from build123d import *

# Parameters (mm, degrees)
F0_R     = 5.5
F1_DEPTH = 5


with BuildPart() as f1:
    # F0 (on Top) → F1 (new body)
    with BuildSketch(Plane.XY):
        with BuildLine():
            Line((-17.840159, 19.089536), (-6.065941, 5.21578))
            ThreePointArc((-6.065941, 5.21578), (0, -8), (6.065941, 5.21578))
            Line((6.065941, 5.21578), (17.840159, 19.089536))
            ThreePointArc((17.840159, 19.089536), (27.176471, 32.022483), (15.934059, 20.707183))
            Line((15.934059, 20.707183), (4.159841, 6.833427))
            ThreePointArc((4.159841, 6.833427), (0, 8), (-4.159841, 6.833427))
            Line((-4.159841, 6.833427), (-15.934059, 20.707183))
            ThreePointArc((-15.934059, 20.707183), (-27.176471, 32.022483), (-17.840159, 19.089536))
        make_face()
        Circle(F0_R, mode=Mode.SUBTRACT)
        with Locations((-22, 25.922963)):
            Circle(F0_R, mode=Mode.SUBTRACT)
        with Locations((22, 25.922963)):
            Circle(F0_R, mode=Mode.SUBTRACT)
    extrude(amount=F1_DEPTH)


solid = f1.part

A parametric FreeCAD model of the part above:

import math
import FreeCAD as App
import Part
import Sketcher
from FreeCAD import Vector
Q = App.Units.Quantity

doc = App.newDocument("Part")
params = doc.addObject("Spreadsheet::Sheet", "Params")
for row, (alias, value) in enumerate([
    ("sketch1_diameter", "11 mm"),
    ("sketch1_radius", "8 mm"),
    ("pad1_length", "5 mm"),
], start=1):
    params.set(f"A{row}", alias)
    params.set(f"B{row}", "=" + value)
    params.setAlias(f"B{row}", alias)

body = doc.addObject("PartDesign::Body", "Body")

# Sketch on XY plane
sketch1 = body.newObject("Sketcher::SketchObject", "Sketch")
sketch1.AttachmentSupport = (doc.getObject("XY_Plane"), [""])
sketch1.MapMode = "FlatFace"
sketch1.addGeometry(Part.LineSegment(Vector(-17.8, 19.1, 0), Vector(-6.1, 5.2, 0)), False)
sketch1.addGeometry(Part.ArcOfCircle(Part.Circle(Vector(0, 0, 0), Vector(0, 0, 1), 8), math.radians(139), math.radians(401)), False)
sketch1.addGeometry(Part.LineSegment(Vector(6.1, 5.2, 0), Vector(17.8, 19.1, 0)), False)
sketch1.addGeometry(Part.ArcOfCircle(Part.Circle(Vector(22, 25.9, 0), Vector(0, 0, 1), 8), math.radians(-121), math.radians(221)), False)
sketch1.addGeometry(Part.LineSegment(Vector(15.9, 20.7, 0), Vector(4.2, 6.8, 0)), False)
sketch1.addGeometry(Part.ArcOfCircle(Part.Circle(Vector(0, 0, 0), Vector(0, 0, 1), 8), math.radians(59), math.radians(121)), False)
sketch1.addGeometry(Part.LineSegment(Vector(-4.2, 6.8, 0), Vector(-15.9, 20.7, 0)), False)
sketch1.addGeometry(Part.ArcOfCircle(Part.Circle(Vector(-22, 25.9, 0), Vector(0, 0, 1), 8), math.radians(-41), math.radians(301)), False)
sketch1.addGeometry(Part.Circle(Vector(0, 0, 0), Vector(0, 0, 1), 5.5), False)
sketch1.addGeometry(Part.Circle(Vector(-22, 25.9, 0), Vector(0, 0, 1), 5.5), False)
sketch1.addGeometry(Part.Circle(Vector(22, 25.9, 0), Vector(0, 0, 1), 5.5), False)
sketch1.addConstraint(Sketcher.Constraint("Coincident", 0, 2, 1, 1))
sketch1.addConstraint(Sketcher.Constraint("Coincident", 1, 2, 2, 1))
sketch1.addConstraint(Sketcher.Constraint("Coincident", 2, 2, 3, 1))
sketch1.addConstraint(Sketcher.Constraint("Coincident", 3, 2, 4, 1))
sketch1.addConstraint(Sketcher.Constraint("Coincident", 4, 2, 5, 1))
sketch1.addConstraint(Sketcher.Constraint("Coincident", 5, 2, 6, 1))
sketch1.addConstraint(Sketcher.Constraint("Coincident", 6, 2, 7, 1))
sketch1.addConstraint(Sketcher.Constraint("Coincident", 7, 2, 0, 1))
sketch1.addConstraint(Sketcher.Constraint("Coincident", 1, 3, -1, 1))
sketch1.addConstraint(Sketcher.Constraint("Coincident", 5, 3, -1, 1))
sketch1.addConstraint(Sketcher.Constraint("Coincident", 8, 3, -1, 1))
sketch1.addConstraint(Sketcher.Constraint("Coincident", 9, 3, 7, 3))
sketch1.addConstraint(Sketcher.Constraint("Coincident", 10, 3, 3, 3))
sketch1.addConstraint(Sketcher.Constraint("Equal", 1, 3))
sketch1.addConstraint(Sketcher.Constraint("Equal", 3, 5))
sketch1.addConstraint(Sketcher.Constraint("Equal", 5, 7))
sketch1.addConstraint(Sketcher.Constraint("Equal", 8, 9))
sketch1.addConstraint(Sketcher.Constraint("Equal", 9, 10))
sketch1.addConstraint(Sketcher.Constraint("Symmetric", 3, 3, 7, 3, -2))
sketch1.addConstraint(Sketcher.Constraint("Parallel", 2, 4))
sketch1.addConstraint(Sketcher.Constraint("Parallel", 0, 6))
sketch1.addConstraint(Sketcher.Constraint("Horizontal", 0, 2, 1, 2))
sketch1.addConstraint(Sketcher.Constraint("Horizontal", 4, 2, 5, 2))
sketch1.addConstraint(Sketcher.Constraint("Horizontal", 3, 2, 6, 2))
sketch1.addConstraint(Sketcher.Constraint("Equal", 2, 4))
sketch1.addConstraint(Sketcher.Constraint("Diameter", 8, Q("11 mm")))
sketch1.addConstraint(Sketcher.Constraint("Radius", 1, Q("8 mm")))
sketch1.addConstraint(Sketcher.Constraint("DistanceX", -1, 1, 3, 3, Q("22 mm")))
sketch1.addConstraint(Sketcher.Constraint("DistanceX", 3, 2, 2, 2, Q("1.9061 mm")))
sketch1.addConstraint(Sketcher.Constraint("Distance", 0, Q("18.196519 mm")))
sketch1.addConstraint(Sketcher.Constraint("DistanceX", 0, 2, -1, 1, Q("6.065941 mm")))
sketch1.setExpression("Constraints[25]", "Params.sketch1_diameter")
sketch1.setExpression("Constraints[26]", "Params.sketch1_radius")
pad1 = body.newObject("PartDesign::Pad", "Pad")
pad1.Profile = sketch1
pad1.setExpression("Length", "Params.pad1_length")

doc.recompute()
